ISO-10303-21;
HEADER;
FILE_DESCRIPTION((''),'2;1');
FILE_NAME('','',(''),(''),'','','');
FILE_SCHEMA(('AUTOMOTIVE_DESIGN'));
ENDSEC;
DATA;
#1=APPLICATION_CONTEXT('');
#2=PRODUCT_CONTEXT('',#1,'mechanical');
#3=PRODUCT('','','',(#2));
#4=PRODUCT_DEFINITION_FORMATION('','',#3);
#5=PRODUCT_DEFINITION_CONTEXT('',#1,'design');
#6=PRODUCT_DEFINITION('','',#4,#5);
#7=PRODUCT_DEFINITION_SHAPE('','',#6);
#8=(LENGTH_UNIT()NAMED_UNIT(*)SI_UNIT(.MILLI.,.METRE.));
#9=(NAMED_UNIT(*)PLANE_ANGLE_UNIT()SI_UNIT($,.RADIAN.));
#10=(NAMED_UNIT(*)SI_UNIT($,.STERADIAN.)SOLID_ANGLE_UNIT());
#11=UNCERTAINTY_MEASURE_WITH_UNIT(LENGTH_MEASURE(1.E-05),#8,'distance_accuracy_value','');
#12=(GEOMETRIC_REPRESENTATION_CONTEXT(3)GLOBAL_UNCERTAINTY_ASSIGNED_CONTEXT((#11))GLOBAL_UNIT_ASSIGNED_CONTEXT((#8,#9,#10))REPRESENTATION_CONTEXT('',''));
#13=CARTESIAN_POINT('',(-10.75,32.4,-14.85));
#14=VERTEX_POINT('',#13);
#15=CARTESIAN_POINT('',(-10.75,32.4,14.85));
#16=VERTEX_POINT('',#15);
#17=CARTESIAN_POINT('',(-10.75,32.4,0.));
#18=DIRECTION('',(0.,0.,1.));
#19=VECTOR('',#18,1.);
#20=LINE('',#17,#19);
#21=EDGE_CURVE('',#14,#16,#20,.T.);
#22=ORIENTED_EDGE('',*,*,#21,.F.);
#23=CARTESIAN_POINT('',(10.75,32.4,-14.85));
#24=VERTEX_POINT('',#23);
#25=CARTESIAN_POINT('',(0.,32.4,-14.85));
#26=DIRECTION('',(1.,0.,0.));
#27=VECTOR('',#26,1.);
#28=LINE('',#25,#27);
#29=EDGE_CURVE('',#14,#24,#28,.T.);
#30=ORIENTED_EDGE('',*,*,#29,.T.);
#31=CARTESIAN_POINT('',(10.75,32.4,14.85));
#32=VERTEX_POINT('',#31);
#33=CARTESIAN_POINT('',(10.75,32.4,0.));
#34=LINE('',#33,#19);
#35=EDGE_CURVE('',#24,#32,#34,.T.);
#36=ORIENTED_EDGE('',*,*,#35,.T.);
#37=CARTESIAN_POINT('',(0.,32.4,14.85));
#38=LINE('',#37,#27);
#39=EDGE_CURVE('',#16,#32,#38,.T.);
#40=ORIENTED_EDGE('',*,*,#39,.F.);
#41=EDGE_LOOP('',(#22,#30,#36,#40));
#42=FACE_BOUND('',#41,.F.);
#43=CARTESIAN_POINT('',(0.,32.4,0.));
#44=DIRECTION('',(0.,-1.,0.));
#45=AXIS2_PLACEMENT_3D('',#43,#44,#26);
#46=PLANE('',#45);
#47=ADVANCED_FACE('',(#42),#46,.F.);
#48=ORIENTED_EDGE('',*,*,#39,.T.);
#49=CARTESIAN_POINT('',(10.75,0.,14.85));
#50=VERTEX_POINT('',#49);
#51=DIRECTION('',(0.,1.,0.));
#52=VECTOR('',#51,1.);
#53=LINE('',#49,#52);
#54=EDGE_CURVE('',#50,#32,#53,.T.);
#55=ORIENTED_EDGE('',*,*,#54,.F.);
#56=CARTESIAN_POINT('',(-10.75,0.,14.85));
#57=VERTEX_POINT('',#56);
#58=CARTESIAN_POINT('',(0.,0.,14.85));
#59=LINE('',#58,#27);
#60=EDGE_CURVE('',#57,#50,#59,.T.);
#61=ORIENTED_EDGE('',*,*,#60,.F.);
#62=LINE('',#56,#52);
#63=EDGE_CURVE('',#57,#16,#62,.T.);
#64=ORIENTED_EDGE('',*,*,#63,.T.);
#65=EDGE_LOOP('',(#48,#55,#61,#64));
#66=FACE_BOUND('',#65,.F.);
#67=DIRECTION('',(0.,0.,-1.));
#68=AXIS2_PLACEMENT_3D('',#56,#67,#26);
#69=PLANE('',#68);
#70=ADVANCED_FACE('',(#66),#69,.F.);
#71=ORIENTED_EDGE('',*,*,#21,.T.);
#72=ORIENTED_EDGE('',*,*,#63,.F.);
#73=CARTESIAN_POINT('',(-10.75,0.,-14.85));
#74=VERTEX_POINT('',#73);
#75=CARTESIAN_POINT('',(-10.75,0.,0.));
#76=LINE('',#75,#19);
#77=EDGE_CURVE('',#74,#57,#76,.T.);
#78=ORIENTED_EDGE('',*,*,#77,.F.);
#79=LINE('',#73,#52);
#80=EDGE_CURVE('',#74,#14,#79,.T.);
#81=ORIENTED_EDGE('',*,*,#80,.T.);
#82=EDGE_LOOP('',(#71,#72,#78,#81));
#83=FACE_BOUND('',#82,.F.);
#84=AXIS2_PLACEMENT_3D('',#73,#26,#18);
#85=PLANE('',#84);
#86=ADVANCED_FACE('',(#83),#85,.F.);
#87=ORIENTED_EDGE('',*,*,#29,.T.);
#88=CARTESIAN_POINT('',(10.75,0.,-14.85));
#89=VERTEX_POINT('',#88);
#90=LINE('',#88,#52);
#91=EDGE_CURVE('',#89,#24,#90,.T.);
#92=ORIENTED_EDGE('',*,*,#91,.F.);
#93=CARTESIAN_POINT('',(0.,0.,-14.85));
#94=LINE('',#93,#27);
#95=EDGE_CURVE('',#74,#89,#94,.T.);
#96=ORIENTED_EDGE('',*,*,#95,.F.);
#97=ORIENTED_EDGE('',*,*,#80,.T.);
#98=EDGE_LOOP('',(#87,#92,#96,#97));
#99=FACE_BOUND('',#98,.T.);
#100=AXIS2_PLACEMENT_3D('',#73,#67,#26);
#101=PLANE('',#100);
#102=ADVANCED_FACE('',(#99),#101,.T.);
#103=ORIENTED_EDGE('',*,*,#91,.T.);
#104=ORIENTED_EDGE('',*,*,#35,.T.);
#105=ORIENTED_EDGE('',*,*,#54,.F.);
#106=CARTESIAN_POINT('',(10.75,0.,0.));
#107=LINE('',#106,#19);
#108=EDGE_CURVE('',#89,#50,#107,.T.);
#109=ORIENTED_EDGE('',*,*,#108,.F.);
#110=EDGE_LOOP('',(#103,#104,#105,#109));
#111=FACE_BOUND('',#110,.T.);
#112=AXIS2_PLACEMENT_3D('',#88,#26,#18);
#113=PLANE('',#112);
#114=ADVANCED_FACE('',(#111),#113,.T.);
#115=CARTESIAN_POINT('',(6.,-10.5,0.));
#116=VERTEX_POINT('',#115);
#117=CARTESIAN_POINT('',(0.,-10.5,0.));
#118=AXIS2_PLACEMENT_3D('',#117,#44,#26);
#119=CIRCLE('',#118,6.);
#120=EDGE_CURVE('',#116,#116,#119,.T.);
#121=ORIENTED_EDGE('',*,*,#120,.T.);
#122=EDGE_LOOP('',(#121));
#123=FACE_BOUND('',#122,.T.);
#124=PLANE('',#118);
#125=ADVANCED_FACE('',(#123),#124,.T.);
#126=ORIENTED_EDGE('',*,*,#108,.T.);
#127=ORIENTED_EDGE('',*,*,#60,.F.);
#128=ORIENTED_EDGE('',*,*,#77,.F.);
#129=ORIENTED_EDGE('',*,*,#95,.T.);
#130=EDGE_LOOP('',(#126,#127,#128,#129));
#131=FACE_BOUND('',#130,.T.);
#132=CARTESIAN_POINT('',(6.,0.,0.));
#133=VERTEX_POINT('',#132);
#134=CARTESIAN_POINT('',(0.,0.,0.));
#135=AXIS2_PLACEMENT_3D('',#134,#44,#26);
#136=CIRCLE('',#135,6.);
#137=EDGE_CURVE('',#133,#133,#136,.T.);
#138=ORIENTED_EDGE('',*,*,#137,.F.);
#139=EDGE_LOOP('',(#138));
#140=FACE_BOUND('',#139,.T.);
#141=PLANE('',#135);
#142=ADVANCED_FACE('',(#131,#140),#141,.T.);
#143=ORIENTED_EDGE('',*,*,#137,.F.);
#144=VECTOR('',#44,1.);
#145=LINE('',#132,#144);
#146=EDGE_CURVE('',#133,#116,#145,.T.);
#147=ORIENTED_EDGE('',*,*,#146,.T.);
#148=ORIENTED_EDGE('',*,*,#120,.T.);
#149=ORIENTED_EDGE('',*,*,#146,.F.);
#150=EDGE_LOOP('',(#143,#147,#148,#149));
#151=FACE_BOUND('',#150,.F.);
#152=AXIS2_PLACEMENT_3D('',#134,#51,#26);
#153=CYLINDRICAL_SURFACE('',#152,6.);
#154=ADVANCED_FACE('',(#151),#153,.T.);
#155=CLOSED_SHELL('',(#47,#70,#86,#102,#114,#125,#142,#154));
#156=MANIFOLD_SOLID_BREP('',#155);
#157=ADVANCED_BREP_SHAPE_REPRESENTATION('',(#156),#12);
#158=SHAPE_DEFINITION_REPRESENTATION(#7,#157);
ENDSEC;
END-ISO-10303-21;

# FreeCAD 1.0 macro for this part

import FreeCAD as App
import Part
import Sketcher

V = App.Vector


def add_polygon(sketch, points):
    """Adds a closed chain of lines whose ends are joined by coincident constraints."""
    first, n = sketch.GeometryCount, len(points)
    for a, b in zip(points, points[1:] + points[:1]):
        sketch.addGeometry(Part.LineSegment(App.Vector(*a, 0), App.Vector(*b, 0)), False)
    for i in range(n):
        sketch.addConstraint(Sketcher.Constraint("Coincident", first + i, 2, first + (i + 1) % n, 1))

doc = App.newDocument("Part")
body = doc.addObject("PartDesign::Body", "Body")

sketch1 = body.newObject("Sketcher::SketchObject", "Sketch")
sketch1.AttachmentSupport = (doc.getObject("XZ_Plane"), [""])
sketch1.MapMode = "FlatFace"
add_polygon(sketch1, [(-11, 15), (-11, -15), (11, -15), (11, 15)])
sketch1.addConstraint([
    Sketcher.Constraint("Vertical", 0),
    Sketcher.Constraint("Horizontal", 1),
    Sketcher.Constraint("Vertical", 2),
    Sketcher.Constraint("Horizontal", 3),
    Sketcher.Constraint("Symmetric", 0, 2, 2, 2, -1, 1),
    Sketcher.Constraint("DistanceX", 1, 1, 1, 2, 21.5),
    Sketcher.Constraint("DistanceY", 0, 2, 0, 1, 29.7),
])
pad1 = body.newObject("PartDesign::Pad", "Pad")
pad1.Profile = sketch1
pad1.Length = 32.4
pad1.Reversed = True

sketch2 = body.newObject("Sketcher::SketchObject", "Sketch001")
sketch2.AttachmentSupport = (doc.getObject("XZ_Plane"), [""])
sketch2.MapMode = "FlatFace"
sketch2.addGeometry(Part.Circle(V(0, 0, 0), V(0, 0, 1), 6), False)
sketch2.addConstraint([
    Sketcher.Constraint("Coincident", 0, 3, -1, 1),
    Sketcher.Constraint("Diameter", 0, 12.0),
])
pad2 = body.newObject("PartDesign::Pad", "Pad001")
pad2.Profile = sketch2
pad2.Length = 10.5

doc.recompute()
